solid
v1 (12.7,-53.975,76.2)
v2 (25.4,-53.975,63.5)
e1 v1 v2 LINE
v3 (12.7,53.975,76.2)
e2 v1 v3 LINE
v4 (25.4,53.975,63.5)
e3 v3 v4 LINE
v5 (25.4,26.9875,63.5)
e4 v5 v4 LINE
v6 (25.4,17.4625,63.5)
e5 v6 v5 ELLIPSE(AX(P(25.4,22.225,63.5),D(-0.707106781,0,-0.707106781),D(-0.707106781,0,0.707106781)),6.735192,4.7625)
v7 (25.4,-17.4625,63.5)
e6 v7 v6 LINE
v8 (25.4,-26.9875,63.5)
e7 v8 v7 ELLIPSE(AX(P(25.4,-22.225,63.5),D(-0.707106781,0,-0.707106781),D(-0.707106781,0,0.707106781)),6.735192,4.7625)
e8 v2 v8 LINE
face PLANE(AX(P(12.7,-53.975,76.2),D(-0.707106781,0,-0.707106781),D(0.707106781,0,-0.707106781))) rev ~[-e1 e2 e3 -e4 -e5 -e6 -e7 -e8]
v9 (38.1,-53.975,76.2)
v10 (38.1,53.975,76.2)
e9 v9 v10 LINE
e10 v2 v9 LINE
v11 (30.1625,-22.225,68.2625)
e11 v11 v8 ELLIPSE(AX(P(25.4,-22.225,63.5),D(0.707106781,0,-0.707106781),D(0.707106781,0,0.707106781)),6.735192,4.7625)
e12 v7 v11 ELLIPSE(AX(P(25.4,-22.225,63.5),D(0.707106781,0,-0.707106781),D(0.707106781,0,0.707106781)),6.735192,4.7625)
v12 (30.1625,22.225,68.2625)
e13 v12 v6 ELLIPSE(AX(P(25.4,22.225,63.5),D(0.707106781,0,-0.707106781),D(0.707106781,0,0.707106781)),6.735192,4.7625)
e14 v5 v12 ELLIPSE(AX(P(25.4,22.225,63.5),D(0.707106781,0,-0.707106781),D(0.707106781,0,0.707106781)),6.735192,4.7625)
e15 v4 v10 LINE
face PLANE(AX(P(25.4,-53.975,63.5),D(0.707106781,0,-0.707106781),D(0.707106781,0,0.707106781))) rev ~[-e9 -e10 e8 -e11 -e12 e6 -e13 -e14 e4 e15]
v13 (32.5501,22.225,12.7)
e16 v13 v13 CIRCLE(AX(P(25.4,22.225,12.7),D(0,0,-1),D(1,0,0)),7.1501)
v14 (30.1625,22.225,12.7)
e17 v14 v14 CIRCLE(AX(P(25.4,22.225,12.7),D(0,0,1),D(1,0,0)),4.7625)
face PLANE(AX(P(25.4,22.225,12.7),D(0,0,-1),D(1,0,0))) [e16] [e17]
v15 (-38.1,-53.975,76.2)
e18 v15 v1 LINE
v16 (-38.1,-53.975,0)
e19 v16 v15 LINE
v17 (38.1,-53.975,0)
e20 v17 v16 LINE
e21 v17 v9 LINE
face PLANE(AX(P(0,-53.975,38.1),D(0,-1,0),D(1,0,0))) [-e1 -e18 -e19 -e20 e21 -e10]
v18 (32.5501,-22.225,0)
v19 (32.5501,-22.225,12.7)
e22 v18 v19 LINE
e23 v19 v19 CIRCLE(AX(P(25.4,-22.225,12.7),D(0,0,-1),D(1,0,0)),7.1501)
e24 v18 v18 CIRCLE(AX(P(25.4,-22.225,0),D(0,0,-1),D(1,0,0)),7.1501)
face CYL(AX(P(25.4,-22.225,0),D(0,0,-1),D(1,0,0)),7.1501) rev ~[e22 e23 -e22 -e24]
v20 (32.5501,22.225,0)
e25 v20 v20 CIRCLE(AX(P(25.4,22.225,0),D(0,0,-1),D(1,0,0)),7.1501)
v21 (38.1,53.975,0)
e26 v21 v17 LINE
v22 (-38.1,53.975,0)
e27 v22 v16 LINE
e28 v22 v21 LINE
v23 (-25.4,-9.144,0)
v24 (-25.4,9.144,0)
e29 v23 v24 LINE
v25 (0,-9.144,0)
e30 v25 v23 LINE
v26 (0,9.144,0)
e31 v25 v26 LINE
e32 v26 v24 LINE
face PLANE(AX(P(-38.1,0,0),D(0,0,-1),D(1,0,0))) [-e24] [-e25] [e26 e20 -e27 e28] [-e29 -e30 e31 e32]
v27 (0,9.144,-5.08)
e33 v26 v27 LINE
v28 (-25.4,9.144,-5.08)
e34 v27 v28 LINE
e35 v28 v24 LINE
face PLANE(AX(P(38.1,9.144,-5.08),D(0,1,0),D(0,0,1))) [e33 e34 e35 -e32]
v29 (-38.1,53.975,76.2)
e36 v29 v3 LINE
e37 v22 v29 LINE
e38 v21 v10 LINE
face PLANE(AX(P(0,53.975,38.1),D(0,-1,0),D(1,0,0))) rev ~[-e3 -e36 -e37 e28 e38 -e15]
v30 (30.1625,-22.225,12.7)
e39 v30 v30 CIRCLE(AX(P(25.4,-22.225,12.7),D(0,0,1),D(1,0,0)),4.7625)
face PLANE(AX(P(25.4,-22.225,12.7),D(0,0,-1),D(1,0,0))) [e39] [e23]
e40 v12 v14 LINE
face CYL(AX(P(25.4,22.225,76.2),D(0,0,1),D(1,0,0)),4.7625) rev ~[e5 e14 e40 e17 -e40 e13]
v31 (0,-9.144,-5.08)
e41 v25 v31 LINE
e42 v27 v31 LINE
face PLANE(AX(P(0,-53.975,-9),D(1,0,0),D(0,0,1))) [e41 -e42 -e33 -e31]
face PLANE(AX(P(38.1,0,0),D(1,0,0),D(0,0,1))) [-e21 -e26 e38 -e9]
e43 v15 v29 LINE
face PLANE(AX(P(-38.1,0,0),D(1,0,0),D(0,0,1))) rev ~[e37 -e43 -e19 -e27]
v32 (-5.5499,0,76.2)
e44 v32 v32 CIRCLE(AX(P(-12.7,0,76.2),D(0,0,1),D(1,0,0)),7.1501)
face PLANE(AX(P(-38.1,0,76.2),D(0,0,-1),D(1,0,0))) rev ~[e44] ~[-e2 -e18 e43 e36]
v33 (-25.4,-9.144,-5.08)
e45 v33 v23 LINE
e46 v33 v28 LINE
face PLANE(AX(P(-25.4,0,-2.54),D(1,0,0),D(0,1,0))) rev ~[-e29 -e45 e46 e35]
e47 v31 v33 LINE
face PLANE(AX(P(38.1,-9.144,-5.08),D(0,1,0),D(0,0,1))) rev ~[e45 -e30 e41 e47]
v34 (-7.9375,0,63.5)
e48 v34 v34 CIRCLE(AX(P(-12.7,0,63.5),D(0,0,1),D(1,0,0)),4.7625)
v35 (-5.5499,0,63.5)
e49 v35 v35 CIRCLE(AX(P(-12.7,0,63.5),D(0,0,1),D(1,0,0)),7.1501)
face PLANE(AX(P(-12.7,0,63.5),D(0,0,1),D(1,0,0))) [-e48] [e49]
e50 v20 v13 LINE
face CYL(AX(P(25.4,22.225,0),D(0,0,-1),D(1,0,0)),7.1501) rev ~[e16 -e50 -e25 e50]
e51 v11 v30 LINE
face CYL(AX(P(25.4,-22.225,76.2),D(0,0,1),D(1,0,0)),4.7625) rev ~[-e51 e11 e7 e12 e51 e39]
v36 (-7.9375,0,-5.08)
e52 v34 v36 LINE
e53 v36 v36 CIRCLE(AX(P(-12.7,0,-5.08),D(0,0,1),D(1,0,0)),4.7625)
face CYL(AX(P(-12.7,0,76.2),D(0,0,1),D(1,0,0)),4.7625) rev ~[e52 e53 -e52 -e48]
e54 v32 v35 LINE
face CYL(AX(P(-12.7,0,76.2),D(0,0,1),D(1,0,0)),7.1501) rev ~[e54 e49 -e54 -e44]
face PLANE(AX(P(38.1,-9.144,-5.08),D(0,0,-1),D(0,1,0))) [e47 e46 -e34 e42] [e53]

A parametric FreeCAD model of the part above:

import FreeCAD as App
import Part
import Sketcher
from FreeCAD import Vector
Q = App.Units.Quantity

doc = App.newDocument("Part")
params = doc.addObject("Spreadsheet::Sheet", "Params")
for row, (alias, value) in enumerate([
    ("sketch1_width", "3 in"),
    ("pad1_length", "4.25 in"),
    ("sketch2_width", "1 in"),
    ("sketch3_height", "0.2 in"),
    ("sketch3_width", "0.72 in"),
    ("pad2_length", "2.5 in"),
    ("sketch4_diameter", "0.375 in"),
    ("sketch5_diameter", "0.563 in"),
    ("pocket3_length", "0.5 in"),
    ("sketch6_diameter", "0.563 in"),
    ("pocket4_length", "0.5 in"),
    ("sketch7_width", "1.5 in"),
], start=1):
    params.set(f"A{row}", alias)
    params.set(f"B{row}", "=" + value)
    params.setAlias(f"B{row}", alias)

body = doc.addObject("PartDesign::Body", "Body")

sketch1 = body.newObject("Sketcher::SketchObject", "Sketch")
sketch1.AttachmentSupport = (doc.getObject("XZ_Plane"), [""])
sketch1.MapMode = "FlatFace"
sketch1.addGeometry(Part.LineSegment(Vector(-38, 76, 0), Vector(-38, 0, 0)), False)
sketch1.addGeometry(Part.LineSegment(Vector(-38, 0, 0), Vector(38, 0, 0)), False)
sketch1.addGeometry(Part.LineSegment(Vector(38, 0, 0), Vector(38, 76, 0)), False)
sketch1.addGeometry(Part.LineSegment(Vector(38, 76, 0), Vector(-38, 76, 0)), False)
sketch1.addConstraint(Sketcher.Constraint("Coincident", 0, 2, 1, 1))
sketch1.addConstraint(Sketcher.Constraint("Coincident", 1, 2, 2, 1))
sketch1.addConstraint(Sketcher.Constraint("Coincident", 2, 2, 3, 1))
sketch1.addConstraint(Sketcher.Constraint("Coincident", 3, 2, 0, 1))
sketch1.addConstraint(Sketcher.Constraint("Vertical", 0))
sketch1.addConstraint(Sketcher.Constraint("Horizontal", 1))
sketch1.addConstraint(Sketcher.Constraint("Vertical", 2))
sketch1.addConstraint(Sketcher.Constraint("Horizontal", 3))
sketch1.addConstraint(Sketcher.Constraint("Symmetric", 0, 2, 1, 2, -1, 1))
sketch1.addConstraint(Sketcher.Constraint("Equal", 3, 0))
sketch1.addConstraint(Sketcher.Constraint("DistanceX", 1, 1, 1, 2, Q("3 in")))
sketch1.setExpression("Constraints[10]", "Params.sketch1_width")
pad1 = body.newObject("PartDesign::Pad", "Pad")
pad1.Profile = sketch1
pad1.setExpression("Length", "Params.pad1_length")
pad1.Midplane = True

sketch2 = body.newObject("Sketcher::SketchObject", "Sketch001")
sketch2.AttachmentSupport = (doc.getObject("XZ_Plane"), [""])
sketch2.MapMode = "FlatFace"
sketch2.AttachmentOffset = App.Placement(Vector(0, 0, 2.125 * 25.4), App.Rotation())
sketch2.addGeometry(Part.LineSegment(Vector(38, 76, 0), Vector(13, 76, 0)), False)
sketch2.addGeometry(Part.LineSegment(Vector(13, 76, 0), Vector(25, 64, 0)), False)
sketch2.addGeometry(Part.LineSegment(Vector(25, 64, 0), Vector(38, 76, 0)), False)
sketch2.addConstraint(Sketcher.Constraint("Coincident", 0, 2, 1, 1))
sketch2.addConstraint(Sketcher.Constraint("Coincident", 1, 2, 2, 1))
sketch2.addConstraint(Sketcher.Constraint("Coincident", 2, 2, 0, 1))
sketch2.addConstraint(Sketcher.Constraint("Horizontal", 0))
sketch2.addConstraint(Sketcher.Constraint("Perpendicular", 1, 2))
sketch2.addConstraint(Sketcher.Constraint("Equal", 1, 2))
sketch2.addConstraint(Sketcher.Constraint("DistanceX", 0, 2, 0, 1, Q("1 in")))
sketch2.addConstraint(Sketcher.Constraint("DistanceY", -1, 1, 0, 2, Q("3 in")))
sketch2.addConstraint(Sketcher.Constraint("DistanceX", -1, 1, 1, 2, Q("1 in")))
sketch2.setExpression("Constraints[6]", "Params.sketch2_width")
pocket1 = body.newObject("PartDesign::Pocket", "Pocket")
pocket1.Profile = sketch2
pocket1.Type = "ThroughAll"

sketch3 = body.newObject("Sketcher::SketchObject", "Sketch002")
sketch3.AttachmentSupport = (doc.getObject("YZ_Plane"), [""])
sketch3.MapMode = "FlatFace"
sketch3.AttachmentOffset = App.Placement(Vector(0, 0, 1.5 * 25.4), App.Rotation())
sketch3.addGeometry(Part.LineSegment(Vector(-9, 0, 0), Vector(-9, -5, 0)), False)
sketch3.addGeometry(Part.LineSegment(Vector(-9, -5, 0), Vector(9, -5, 0)), False)
sketch3.addGeometry(Part.LineSegment(Vector(9, -5, 0), Vector(9, 0, 0)), False)
sketch3.addGeometry(Part.LineSegment(Vector(9, 0, 0), Vector(-9, 0, 0)), False)
sketch3.addConstraint(Sketcher.Constraint("Coincident", 0, 2, 1, 1))
sketch3.addConstraint(Sketcher.Constraint("Coincident", 1, 2, 2, 1))
sketch3.addConstraint(Sketcher.Constraint("Coincident", 2, 2, 3, 1))
sketch3.addConstraint(Sketcher.Constraint("Coincident", 3, 2, 0, 1))
sketch3.addConstraint(Sketcher.Constraint("Vertical", 0))
sketch3.addConstraint(Sketcher.Constraint("Horizontal", 1))
sketch3.addConstraint(Sketcher.Constraint("Vertical", 2))
sketch3.addConstraint(Sketcher.Constraint("Horizontal", 3))
sketch3.addConstraint(Sketcher.Constraint("Symmetric", 2, 2, 3, 2, -1, 1))
sketch3.addConstraint(Sketcher.Constraint("DistanceY", 0, 2, 0, 1, Q("0.2 in")))
sketch3.addConstraint(Sketcher.Constraint("DistanceX", 1, 1, 1, 2, Q("0.72 in")))
sketch3.setExpression("Constraints[9]", "Params.sketch3_height")
sketch3.setExpression("Constraints[10]", "Params.sketch3_width")
pad2 = body.newObject("PartDesign::Pad", "Pad001")
pad2.Profile = sketch3
pad2.setExpression("Length", "Params.pad2_length")
pad2.Reversed = True

sketch4 = body.newObject("Sketcher::SketchObject", "Sketch003")
sketch4.AttachmentSupport = (doc.getObject("XY_Plane"), [""])
sketch4.MapMode = "FlatFace"
sketch4.AttachmentOffset = App.Placement(Vector(0, 0, 3 * 25.4), App.Rotation())
sketch4.addGeometry(Part.Circle(Vector(25.4, 22.2, 0), Vector(0, 0, 1), 4.8), False)
sketch4.addGeometry(Part.Circle(Vector(25.4, -22.2, 0), Vector(0, 0, 1), 4.8), False)
sketch4.addGeometry(Part.Circle(Vector(-12.7, 0, 0), Vector(0, 0, 1), 4.8), False)
sketch4.addConstraint(Sketcher.Constraint("Equal", 0, 1))
sketch4.addConstraint(Sketcher.Constraint("Equal", 1, 2))
sketch4.addConstraint(Sketcher.Constraint("Symmetric", 0, 3, 1, 3, -1))
sketch4.addConstraint(Sketcher.Constraint("PointOnObject", 2, 3, -1))
sketch4.addConstraint(Sketcher.Constraint("Diameter", 0, Q("0.375 in")))
sketch4.addConstraint(Sketcher.Constraint("DistanceX", -1, 1, 0, 3, Q("1 in")))
sketch4.addConstraint(Sketcher.Constraint("DistanceX", 2, 3, -1, 1, Q("0.5 in")))
sketch4.addConstraint(Sketcher.Constraint("DistanceY", 1, 3, 0, 3, Q("1.75 in")))
sketch4.setExpression("Constraints[4]", "Params.sketch4_diameter")
pocket2 = body.newObject("PartDesign::Pocket", "Pocket001")
pocket2.Profile = sketch4
pocket2.Type = "ThroughAll"

sketch5 = body.newObject("Sketcher::SketchObject", "Sketch004")
sketch5.AttachmentSupport = (doc.getObject("XY_Plane"), [""])
sketch5.MapMode = "FlatFace"
sketch5.addGeometry(Part.Circle(Vector(25, 22, 0), Vector(0, 0, 1), 7), False)
sketch5.addGeometry(Part.Circle(Vector(25, -22, 0), Vector(0, 0, 1), 7), False)
sketch5.addConstraint(Sketcher.Constraint("Equal", 0, 1))
sketch5.addConstraint(Sketcher.Constraint("Symmetric", 0, 3, 1, 3, -1))
sketch5.addConstraint(Sketcher.Constraint("Diameter", 0, Q("0.563 in")))
sketch5.addConstraint(Sketcher.Constraint("DistanceX", -1, 1, 0, 3, Q("1 in")))
sketch5.addConstraint(Sketcher.Constraint("DistanceY", 1, 3, 0, 3, Q("1.75 in")))
sketch5.setExpression("Constraints[2]", "Params.sketch5_diameter")
pocket3 = body.newObject("PartDesign::Pocket", "Pocket002")
pocket3.Profile = sketch5
pocket3.setExpression("Length", "Params.pocket3_length")
pocket3.Reversed = True

sketch6 = body.newObject("Sketcher::SketchObject", "Sketch005")
sketch6.AttachmentSupport = (doc.getObject("XY_Plane"), [""])
sketch6.MapMode = "FlatFace"
sketch6.AttachmentOffset = App.Placement(Vector(0, 0, 3 * 25.4), App.Rotation())
sketch6.addGeometry(Part.Circle(Vector(-13, 0, 0), Vector(0, 0, 1), 7), False)
sketch6.addConstraint(Sketcher.Constraint("PointOnObject", 0, 3, -1))
sketch6.addConstraint(Sketcher.Constraint("Diameter", 0, Q("0.563 in")))
sketch6.addConstraint(Sketcher.Constraint("DistanceX", 0, 3, -1, 1, Q("0.5 in")))
sketch6.setExpression("Constraints[1]", "Params.sketch6_diameter")
pocket4 = body.newObject("PartDesign::Pocket", "Pocket003")
pocket4.Profile = sketch6
pocket4.setExpression("Length", "Params.pocket4_length")

sketch7 = body.newObject("Sketcher::SketchObject", "Sketch006")
sketch7.AttachmentSupport = (doc.getObject("XZ_Plane"), [""])
sketch7.MapMode = "FlatFace"
sketch7.AttachmentOffset = App.Placement(Vector(0, 0, 2.125 * 25.4), App.Rotation())
sketch7.addGeometry(Part.LineSegment(Vector(0, 0, 0), Vector(0, -9, 0)), False)
sketch7.addGeometry(Part.LineSegment(Vector(0, -9, 0), Vector(38, -9, 0)), False)
sketch7.addGeometry(Part.LineSegment(Vector(38, -9, 0), Vector(38, 0, 0)), False)
sketch7.addGeometry(Part.LineSegment(Vector(38, 0, 0), Vector(0, 0, 0)), False)
sketch7.addConstraint(Sketcher.Constraint("Coincident", 0, 2, 1, 1))
sketch7.addConstraint(Sketcher.Constraint("Coincident", 1, 2, 2, 1))
sketch7.addConstraint(Sketcher.Constraint("Coincident", 2, 2, 3, 1))
sketch7.addConstraint(Sketcher.Constraint("Coincident", 3, 2, 0, 1))
sketch7.addConstraint(Sketcher.Constraint("Vertical", 0))
sketch7.addConstraint(Sketcher.Constraint("Horizontal", 1))
sketch7.addConstraint(Sketcher.Constraint("Vertical", 2))
sketch7.addConstraint(Sketcher.Constraint("Horizontal", 3))
sketch7.addConstraint(Sketcher.Constraint("Coincident", 3, 2, -1, 1))
sketch7.addConstraint(Sketcher.Constraint("DistanceX", 1, 1, 1, 2, Q("1.5 in")))
sketch7.addConstraint(Sketcher.Constraint("DistanceY", 0, 2, 0, 1, Q("9 mm")))
sketch7.setExpression("Constraints[9]", "Params.sketch7_width")
pocket5 = body.newObject("PartDesign::Pocket", "Pocket004")
pocket5.Profile = sketch7
pocket5.Type = "ThroughAll"

doc.recompute()
